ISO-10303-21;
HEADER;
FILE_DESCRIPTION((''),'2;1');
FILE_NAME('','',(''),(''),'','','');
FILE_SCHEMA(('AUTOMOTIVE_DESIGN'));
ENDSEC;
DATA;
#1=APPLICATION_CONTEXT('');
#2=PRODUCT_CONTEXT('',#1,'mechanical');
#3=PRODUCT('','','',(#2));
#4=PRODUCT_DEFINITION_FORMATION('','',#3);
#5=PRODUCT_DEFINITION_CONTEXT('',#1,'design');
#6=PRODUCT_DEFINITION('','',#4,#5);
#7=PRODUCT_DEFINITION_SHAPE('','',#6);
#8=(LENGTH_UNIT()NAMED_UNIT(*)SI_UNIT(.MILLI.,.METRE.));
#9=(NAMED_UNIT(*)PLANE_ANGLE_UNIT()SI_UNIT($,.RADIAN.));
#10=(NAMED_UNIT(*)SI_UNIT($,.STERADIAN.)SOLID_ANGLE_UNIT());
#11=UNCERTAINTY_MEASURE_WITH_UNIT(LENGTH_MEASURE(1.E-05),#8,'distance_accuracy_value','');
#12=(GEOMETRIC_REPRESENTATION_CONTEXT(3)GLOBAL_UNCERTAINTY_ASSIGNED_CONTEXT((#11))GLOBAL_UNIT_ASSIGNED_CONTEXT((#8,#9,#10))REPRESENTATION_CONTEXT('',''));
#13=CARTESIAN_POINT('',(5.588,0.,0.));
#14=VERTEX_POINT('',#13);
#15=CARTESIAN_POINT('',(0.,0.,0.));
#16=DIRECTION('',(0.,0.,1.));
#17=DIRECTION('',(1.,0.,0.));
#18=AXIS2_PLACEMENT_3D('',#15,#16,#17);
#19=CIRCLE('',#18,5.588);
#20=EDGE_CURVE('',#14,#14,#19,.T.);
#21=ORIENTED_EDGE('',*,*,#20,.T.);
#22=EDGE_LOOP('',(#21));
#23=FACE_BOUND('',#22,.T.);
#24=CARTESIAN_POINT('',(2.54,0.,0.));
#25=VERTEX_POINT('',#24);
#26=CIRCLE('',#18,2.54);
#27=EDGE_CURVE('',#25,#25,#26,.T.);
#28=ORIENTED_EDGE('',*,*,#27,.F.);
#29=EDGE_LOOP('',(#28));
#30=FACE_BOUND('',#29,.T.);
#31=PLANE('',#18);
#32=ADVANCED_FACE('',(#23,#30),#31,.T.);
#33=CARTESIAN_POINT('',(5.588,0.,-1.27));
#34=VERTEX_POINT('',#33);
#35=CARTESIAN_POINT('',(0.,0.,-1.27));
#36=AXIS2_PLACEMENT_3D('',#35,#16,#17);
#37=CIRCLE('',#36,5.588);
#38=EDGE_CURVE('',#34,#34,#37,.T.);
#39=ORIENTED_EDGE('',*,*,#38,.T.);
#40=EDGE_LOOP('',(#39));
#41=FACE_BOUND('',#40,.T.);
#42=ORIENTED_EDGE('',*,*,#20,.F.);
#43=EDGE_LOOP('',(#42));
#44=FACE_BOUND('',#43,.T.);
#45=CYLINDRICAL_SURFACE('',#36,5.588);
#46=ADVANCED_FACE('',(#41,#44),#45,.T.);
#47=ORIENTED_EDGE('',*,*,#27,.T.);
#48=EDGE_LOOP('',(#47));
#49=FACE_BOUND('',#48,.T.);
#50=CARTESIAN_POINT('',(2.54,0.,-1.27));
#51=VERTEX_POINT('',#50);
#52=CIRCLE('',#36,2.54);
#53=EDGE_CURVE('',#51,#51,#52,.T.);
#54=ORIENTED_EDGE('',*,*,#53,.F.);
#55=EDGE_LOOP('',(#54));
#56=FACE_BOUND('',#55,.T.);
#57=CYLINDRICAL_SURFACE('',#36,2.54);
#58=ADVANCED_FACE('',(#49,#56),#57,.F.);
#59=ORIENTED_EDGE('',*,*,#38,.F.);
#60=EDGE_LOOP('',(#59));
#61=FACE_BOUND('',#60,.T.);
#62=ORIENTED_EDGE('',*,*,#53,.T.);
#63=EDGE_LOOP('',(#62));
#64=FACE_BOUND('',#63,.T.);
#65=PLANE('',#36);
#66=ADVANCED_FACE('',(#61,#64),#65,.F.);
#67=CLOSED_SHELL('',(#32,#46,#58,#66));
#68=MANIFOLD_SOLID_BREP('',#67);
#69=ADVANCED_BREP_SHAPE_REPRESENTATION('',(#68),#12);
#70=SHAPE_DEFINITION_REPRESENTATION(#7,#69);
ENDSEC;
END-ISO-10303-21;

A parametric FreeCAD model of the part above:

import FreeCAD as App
import Part
import Sketcher
from FreeCAD import Vector
Q = App.Units.Quantity

doc = App.newDocument("Part")
body = doc.addObject("PartDesign::Body", "Body")

sketch1 = body.newObject("Sketcher::SketchObject", "Sketch")
sketch1.AttachmentSupport = (doc.getObject("XY_Plane"), [""])
sketch1.MapMode = "FlatFace"
sketch1.addGeometry([
    Part.Circle(Vector(0, 0, 0), Vector(0, 0, 1), 5.6),
    Part.Circle(Vector(0, 0, 0), Vector(0, 0, 1), 2.5),
], False)
sketch1.addConstraint([
    Sketcher.Constraint("Coincident", 0, 3, -1, 1),
    Sketcher.Constraint("Coincident", 1, 3, -1, 1),
    Sketcher.Constraint("Diameter", 1, Q("0.2 in")),
    Sketcher.Constraint("Diameter", 0, Q("0.44 in")),
])
pad1 = body.newObject("PartDesign::Pad", "Pad")
pad1.Profile = sketch1
pad1.Length = Q("0.05 in")
pad1.Reversed = True

doc.recompute()
